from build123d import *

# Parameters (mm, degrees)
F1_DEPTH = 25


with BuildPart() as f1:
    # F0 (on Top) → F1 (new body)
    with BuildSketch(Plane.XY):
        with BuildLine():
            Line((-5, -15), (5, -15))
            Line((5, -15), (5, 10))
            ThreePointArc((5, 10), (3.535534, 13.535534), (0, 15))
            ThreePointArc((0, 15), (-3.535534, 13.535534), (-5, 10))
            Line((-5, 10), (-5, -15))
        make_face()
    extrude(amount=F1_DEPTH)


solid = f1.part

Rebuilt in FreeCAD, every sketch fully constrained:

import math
import FreeCAD as App
import Part
import Sketcher

V = App.Vector
Q = App.Units.Quantity

doc = App.newDocument("Part")
params = doc.addObject("Spreadsheet::Sheet", "Params")
for row, (alias, value) in enumerate([
    ("sketch1_radius", "5 mm"),
    ("sketch1_height", "25 mm"),
    ("pad1_length", "25 mm"),
], start=1):
    params.set(f"A{row}", alias)
    params.set(f"B{row}", "=" + value)
    params.setAlias(f"B{row}", alias)

body = doc.addObject("PartDesign::Body", "Body")

sketch1 = body.newObject("Sketcher::SketchObject", "Sketch")
sketch1.AttachmentSupport = (doc.getObject("XY_Plane"), [""])
sketch1.MapMode = "FlatFace"
sketch1.addGeometry([
    Part.LineSegment(V(-5, -15, 0), V(5, -15, 0)),
    Part.LineSegment(V(5, -15, 0), V(5, 10, 0)),
    Part.ArcOfCircle(Part.Circle(V(0, 10, 0), V(0, 0, 1), 5), math.radians(0), math.radians(90)),
    Part.ArcOfCircle(Part.Circle(V(0, 10, 0), V(0, 0, 1), 5), math.radians(90), math.radians(180)),
    Part.LineSegment(V(-5, 10, 0), V(-5, -15, 0)),
], False)
sketch1.addConstraint([
    Sketcher.Constraint("Coincident", 0, 2, 1, 1),
    Sketcher.Constraint("Tangent", 1, 2, 2, 1),
    Sketcher.Constraint("Tangent", 2, 2, 3, 1),
    Sketcher.Constraint("Tangent", 3, 2, 4, 1),
    Sketcher.Constraint("Coincident", 4, 2, 0, 1),
    Sketcher.Constraint("Horizontal", 0),
    Sketcher.Constraint("Vertical", 1),
    Sketcher.Constraint("Vertical", 4),
    Sketcher.Constraint("Equal", 2, 3),
    Sketcher.Constraint("PointOnObject", 2, 3, -2),
    Sketcher.Constraint("PointOnObject", 2, 2, -2),
    Sketcher.Constraint("Radius", 2, Q("5 mm")),
    Sketcher.Constraint("DistanceY", 1, 1, 1, 2, Q("25 mm")),
    Sketcher.Constraint("DistanceY", -1, 1, 2, 3, Q("10 mm")),
])
sketch1.setExpression("Constraints[11]", "Params.sketch1_radius")
sketch1.setExpression("Constraints[12]", "Params.sketch1_height")
pad1 = body.newObject("PartDesign::Pad", "Pad")
pad1.Profile = sketch1
pad1.setExpression("Length", "Params.pad1_length")

doc.recompute()
